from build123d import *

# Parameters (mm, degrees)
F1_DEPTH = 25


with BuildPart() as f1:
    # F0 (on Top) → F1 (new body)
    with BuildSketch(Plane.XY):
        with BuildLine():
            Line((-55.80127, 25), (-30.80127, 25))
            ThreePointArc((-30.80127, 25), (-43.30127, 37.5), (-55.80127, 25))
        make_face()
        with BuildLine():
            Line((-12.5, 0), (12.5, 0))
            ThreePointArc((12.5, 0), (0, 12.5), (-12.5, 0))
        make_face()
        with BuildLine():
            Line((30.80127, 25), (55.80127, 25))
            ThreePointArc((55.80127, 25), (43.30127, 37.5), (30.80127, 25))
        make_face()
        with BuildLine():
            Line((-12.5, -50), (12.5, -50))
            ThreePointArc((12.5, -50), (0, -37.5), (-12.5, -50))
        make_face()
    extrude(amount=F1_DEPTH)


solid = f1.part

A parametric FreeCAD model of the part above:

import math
import FreeCAD as App
import Part
import Sketcher

V = App.Vector

doc = App.newDocument("Part")
body = doc.addObject("PartDesign::Body", "Body")
body.AllowCompound = True

# Sketch on XY plane
sketch1 = doc.addObject("Sketcher::SketchObject", "Sketch")
body.addObject(sketch1)
sketch1.AttachmentSupport = (doc.XY_Plane, [""])
sketch1.MapMode = "FlatFace"
sketch1.addGeometry([
    Part.LineSegment(V(-56, 25, 0), V(-31, 25, 0)),  # 0
    Part.ArcOfCircle(Part.Circle(V(-43, 25, 0), V(0, 0, 1), 12), math.radians(0), math.radians(180)),  # 1
    Part.LineSegment(V(-12, 0, 0), V(12, 0, 0)),  # 2
    Part.ArcOfCircle(Part.Circle(V(0, 0, 0), V(0, 0, 1), 12), math.radians(0), math.radians(180)),  # 3
    Part.LineSegment(V(31, 25, 0), V(56, 25, 0)),  # 4
    Part.ArcOfCircle(Part.Circle(V(43, 25, 0), V(0, 0, 1), 12), math.radians(0), math.radians(180)),  # 5
    Part.LineSegment(V(-12, -50, 0), V(12, -50, 0)),  # 6
    Part.ArcOfCircle(Part.Circle(V(0, -50, 0), V(0, 0, 1), 12), math.radians(0), math.radians(180)),  # 7
], False)
sketch1.addConstraint([
    Sketcher.Constraint("Coincident", 0, 1, 1, 2),
    Sketcher.Constraint("Coincident", 1, 1, 0, 2),
    Sketcher.Constraint("Coincident", 2, 1, 3, 2),
    Sketcher.Constraint("Coincident", 3, 1, 2, 2),
    Sketcher.Constraint("Coincident", 4, 1, 5, 2),
    Sketcher.Constraint("Coincident", 5, 1, 4, 2),
    Sketcher.Constraint("Coincident", 6, 1, 7, 2),
    Sketcher.Constraint("Coincident", 7, 1, 6, 2),
    Sketcher.Constraint("Horizontal", 0),
    Sketcher.Constraint("Horizontal", 2),
    Sketcher.Constraint("Horizontal", 4),
    Sketcher.Constraint("Horizontal", 6),
    Sketcher.Constraint("Coincident", 3, 3, -1, 1),
    Sketcher.Constraint("Equal", 1, 3),
    Sketcher.Constraint("Equal", 3, 5),
    Sketcher.Constraint("Equal", 5, 7),
    Sketcher.Constraint("Symmetric", 1, 3, 5, 3, -2),
    Sketcher.Constraint("PointOnObject", 7, 3, -2),
    Sketcher.Constraint("PointOnObject", 2, 1, -1),
    Sketcher.Constraint("Horizontal", 5, 3, 0, 1),
    Sketcher.Constraint("Horizontal", 1, 1, 4, 1),
    Sketcher.Constraint("Horizontal", 7, 3, 6, 1),
    Sketcher.Constraint("Radius", 1, 12.5),
    Sketcher.Constraint("DistanceY", -1, 1, 1, 3, 25.0),
    Sketcher.Constraint("DistanceY", 7, 3, -1, 1, 50.0),
    Sketcher.Constraint("DistanceX", 1, 3, -1, 1, 43.30127),
])
pad1 = doc.addObject("PartDesign::Pad", "Pad")
body.addObject(pad1)
pad1.Profile = sketch1
pad1.Length = 25

doc.recompute()
